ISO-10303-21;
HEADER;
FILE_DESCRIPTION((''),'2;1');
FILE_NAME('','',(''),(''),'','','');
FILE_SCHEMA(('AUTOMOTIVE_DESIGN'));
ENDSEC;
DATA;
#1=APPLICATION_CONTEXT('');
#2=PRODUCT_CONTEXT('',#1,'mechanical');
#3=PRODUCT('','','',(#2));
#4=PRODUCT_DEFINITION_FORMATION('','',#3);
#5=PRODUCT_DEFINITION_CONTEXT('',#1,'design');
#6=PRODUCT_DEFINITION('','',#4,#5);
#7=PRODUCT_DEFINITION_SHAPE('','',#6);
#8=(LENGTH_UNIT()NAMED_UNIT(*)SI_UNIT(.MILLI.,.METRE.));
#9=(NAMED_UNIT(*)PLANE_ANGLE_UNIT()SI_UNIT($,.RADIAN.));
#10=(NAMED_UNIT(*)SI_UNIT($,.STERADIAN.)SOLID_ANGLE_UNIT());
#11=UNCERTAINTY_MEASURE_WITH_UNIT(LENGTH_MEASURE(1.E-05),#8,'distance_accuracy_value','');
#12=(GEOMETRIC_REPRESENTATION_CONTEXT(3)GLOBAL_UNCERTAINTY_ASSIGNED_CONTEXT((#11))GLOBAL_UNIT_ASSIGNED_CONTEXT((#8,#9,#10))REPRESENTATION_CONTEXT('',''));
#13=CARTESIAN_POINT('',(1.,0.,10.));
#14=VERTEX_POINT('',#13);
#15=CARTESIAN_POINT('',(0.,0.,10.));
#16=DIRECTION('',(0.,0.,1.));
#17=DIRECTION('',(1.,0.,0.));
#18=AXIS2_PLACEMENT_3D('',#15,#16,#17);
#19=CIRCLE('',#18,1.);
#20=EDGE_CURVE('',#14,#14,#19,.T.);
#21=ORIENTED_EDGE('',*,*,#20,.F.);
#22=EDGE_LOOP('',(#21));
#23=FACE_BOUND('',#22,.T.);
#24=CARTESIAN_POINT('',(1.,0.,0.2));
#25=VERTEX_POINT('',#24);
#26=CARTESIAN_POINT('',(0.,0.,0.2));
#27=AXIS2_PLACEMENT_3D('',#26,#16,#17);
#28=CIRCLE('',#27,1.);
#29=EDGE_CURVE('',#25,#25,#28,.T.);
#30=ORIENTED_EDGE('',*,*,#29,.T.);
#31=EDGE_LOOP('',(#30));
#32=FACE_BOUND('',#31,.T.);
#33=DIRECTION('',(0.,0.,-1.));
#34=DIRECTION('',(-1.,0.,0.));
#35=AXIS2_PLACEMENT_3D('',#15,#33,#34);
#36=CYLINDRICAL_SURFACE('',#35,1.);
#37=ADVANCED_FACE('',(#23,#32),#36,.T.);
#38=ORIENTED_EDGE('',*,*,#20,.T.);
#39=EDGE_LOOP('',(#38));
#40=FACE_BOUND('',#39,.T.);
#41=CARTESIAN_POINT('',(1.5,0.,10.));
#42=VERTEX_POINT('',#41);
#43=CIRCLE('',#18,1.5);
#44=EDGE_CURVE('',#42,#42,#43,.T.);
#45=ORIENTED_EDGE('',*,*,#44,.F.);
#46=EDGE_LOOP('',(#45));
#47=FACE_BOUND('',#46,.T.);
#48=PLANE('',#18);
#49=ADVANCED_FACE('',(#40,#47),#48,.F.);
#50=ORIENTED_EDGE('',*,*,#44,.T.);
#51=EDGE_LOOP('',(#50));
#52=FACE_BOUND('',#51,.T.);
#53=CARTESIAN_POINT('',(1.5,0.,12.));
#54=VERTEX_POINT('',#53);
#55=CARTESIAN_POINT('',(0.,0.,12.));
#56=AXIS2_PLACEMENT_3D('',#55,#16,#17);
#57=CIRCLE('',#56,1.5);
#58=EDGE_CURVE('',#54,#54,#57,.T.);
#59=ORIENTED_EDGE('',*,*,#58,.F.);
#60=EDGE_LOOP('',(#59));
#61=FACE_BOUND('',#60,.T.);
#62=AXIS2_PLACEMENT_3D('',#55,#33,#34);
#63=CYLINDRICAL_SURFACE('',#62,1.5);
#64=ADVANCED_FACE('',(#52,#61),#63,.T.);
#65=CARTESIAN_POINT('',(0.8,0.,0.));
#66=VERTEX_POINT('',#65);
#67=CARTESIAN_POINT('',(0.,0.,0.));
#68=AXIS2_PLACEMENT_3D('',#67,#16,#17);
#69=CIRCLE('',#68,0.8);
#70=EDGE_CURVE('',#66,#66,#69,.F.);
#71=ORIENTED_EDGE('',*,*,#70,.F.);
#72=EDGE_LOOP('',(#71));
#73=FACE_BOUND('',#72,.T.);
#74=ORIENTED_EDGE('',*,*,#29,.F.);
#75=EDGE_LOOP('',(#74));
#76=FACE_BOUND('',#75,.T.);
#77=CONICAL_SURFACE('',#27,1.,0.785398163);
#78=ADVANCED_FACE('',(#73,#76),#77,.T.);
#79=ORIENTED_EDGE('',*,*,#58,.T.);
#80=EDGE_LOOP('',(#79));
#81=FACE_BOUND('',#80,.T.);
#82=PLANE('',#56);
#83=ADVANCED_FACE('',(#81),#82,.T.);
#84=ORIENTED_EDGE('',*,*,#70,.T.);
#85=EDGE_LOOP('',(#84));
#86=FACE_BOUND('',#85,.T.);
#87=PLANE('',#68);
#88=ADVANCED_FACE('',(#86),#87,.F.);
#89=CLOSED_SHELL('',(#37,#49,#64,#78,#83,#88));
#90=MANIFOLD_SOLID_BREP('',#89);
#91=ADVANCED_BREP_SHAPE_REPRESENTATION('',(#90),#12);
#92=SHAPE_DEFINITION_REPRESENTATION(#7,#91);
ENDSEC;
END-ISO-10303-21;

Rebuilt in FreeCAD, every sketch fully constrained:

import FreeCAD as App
import Part
import Sketcher
Q = App.Units.Quantity


def edges_at(feature, points):
    """Names of the edges that pass closest to the given points."""
    edges = feature.Shape.Edges
    near = lambda p: min(range(len(edges)), key=lambda i: edges[i].distToShape(Part.Vertex(*p))[0])
    return sorted({f"Edge{near(p) + 1}" for p in points})

doc = App.newDocument("Part")
body = doc.addObject("PartDesign::Body", "Body")

sketch1 = body.newObject("Sketcher::SketchObject", "Sketch")
sketch1.AttachmentSupport = (doc.getObject("XY_Plane"), [""])
sketch1.MapMode = "FlatFace"
sketch1.addGeometry(Part.Circle(App.Vector(0, 0, 0), App.Vector(0, 0, 1), 1), False)
sketch1.addConstraint([
    Sketcher.Constraint("Coincident", 0, 3, -1, 1),
    Sketcher.Constraint("Diameter", 0, Q("2 mm")),
])
pad1 = body.newObject("PartDesign::Pad", "Pad")
pad1.Profile = sketch1
pad1.Length = 10
doc.recompute()

chamfer = body.newObject("PartDesign::Chamfer", "Chamfer")
chamfer.Base = (pad1, edges_at(pad1, [(-1, 0, 0)]))
chamfer.Size = 0.2

sketch2 = body.newObject("Sketcher::SketchObject", "Sketch001")
sketch2.AttachmentSupport = (doc.getObject("XY_Plane"), [""])
sketch2.MapMode = "FlatFace"
sketch2.AttachmentOffset = App.Placement(App.Vector(0, 0, 10), App.Rotation())
sketch2.addGeometry(Part.Circle(App.Vector(0, 0, 0), App.Vector(0, 0, 1), 1.5), False)
sketch2.addConstraint([
    Sketcher.Constraint("Coincident", 0, 3, -1, 1),
    Sketcher.Constraint("Diameter", 0, Q("3 mm")),
])
pad2 = body.newObject("PartDesign::Pad", "Pad001")
pad2.Profile = sketch2
pad2.Length = 2

doc.recompute()
